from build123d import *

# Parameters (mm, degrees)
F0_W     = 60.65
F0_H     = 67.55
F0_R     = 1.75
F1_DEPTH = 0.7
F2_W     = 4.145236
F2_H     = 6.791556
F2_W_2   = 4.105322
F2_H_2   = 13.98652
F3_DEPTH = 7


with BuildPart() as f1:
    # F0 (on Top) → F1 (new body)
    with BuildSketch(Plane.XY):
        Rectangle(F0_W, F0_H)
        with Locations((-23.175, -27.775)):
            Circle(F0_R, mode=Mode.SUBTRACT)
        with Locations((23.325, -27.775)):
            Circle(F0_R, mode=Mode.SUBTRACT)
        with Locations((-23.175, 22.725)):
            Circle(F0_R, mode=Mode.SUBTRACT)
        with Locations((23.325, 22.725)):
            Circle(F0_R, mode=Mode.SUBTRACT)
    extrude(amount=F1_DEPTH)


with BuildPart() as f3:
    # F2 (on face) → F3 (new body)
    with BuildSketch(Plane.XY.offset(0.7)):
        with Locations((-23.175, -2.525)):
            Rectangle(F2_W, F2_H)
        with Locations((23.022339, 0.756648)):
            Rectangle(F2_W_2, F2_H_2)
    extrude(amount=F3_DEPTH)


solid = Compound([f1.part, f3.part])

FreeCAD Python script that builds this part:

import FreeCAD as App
import Part
import Sketcher
from FreeCAD import Vector


def add_polygon(sketch, points):
    """Adds a closed chain of lines whose ends are joined by coincident constraints."""
    first, n = sketch.GeometryCount, len(points)
    for a, b in zip(points, points[1:] + points[:1]):
        sketch.addGeometry(Part.LineSegment(App.Vector(*a, 0), App.Vector(*b, 0)), False)
    for i in range(n):
        sketch.addConstraint(Sketcher.Constraint("Coincident", first + i, 2, first + (i + 1) % n, 1))

doc = App.newDocument("Part")
body = doc.addObject("PartDesign::Body", "Body")

sketch1 = body.newObject("Sketcher::SketchObject", "Sketch")
sketch1.AttachmentSupport = (doc.getObject("XY_Plane"), [""])
sketch1.MapMode = "FlatFace"
add_polygon(sketch1, [(-30.325, 33.775), (-30.325, -33.775), (30.325, -33.775), (30.325, 33.775)])
sketch1.addGeometry(Part.Circle(Vector(-23.175, -27.775, 0), Vector(0, 0, 1), 1.75), False)
sketch1.addGeometry(Part.Circle(Vector(23.325, -27.775, 0), Vector(0, 0, 1), 1.75), False)
sketch1.addGeometry(Part.Circle(Vector(-23.175, 22.725, 0), Vector(0, 0, 1), 1.75), False)
sketch1.addGeometry(Part.Circle(Vector(23.325, 22.725, 0), Vector(0, 0, 1), 1.75), False)
sketch1.addConstraint([
    Sketcher.Constraint("Vertical", 0),
    Sketcher.Constraint("Horizontal", 1),
    Sketcher.Constraint("Vertical", 2),
    Sketcher.Constraint("Horizontal", 3),
    Sketcher.Constraint("Equal", 4, 5),
    Sketcher.Constraint("Equal", 5, 6),
    Sketcher.Constraint("Equal", 6, 7),
    Sketcher.Constraint("Symmetric", 0, 2, 2, 2, -1, 1),
    Sketcher.Constraint("Horizontal", 4, 3, 5, 3),
    Sketcher.Constraint("Horizontal", 6, 3, 7, 3),
    Sketcher.Constraint("Vertical", 4, 3, 6, 3),
    Sketcher.Constraint("Vertical", 5, 3, 7, 3),
    Sketcher.Constraint("Diameter", 4, 3.5),
    Sketcher.Constraint("DistanceY", 0, 2, 4, 3, 6.0),
    Sketcher.Constraint("DistanceX", 5, 3, 1, 2, 7.0),
    Sketcher.Constraint("DistanceX", 1, 1, 1, 2, 60.65),
    Sketcher.Constraint("DistanceY", 0, 2, 0, 1, 67.55),
    Sketcher.Constraint("DistanceX", 4, 3, 5, 3, 46.5),
    Sketcher.Constraint("DistanceY", 4, 3, 6, 3, 50.5),
])
pad1 = body.newObject("PartDesign::Pad", "Pad")
pad1.Profile = sketch1
pad1.Length = 0.7
body2 = doc.addObject("PartDesign::Body", "Body001")
body2.AllowCompound = True

sketch2 = body2.newObject("Sketcher::SketchObject", "Sketch001")
sketch2.AttachmentSupport = (doc.getObject("XY_Plane001"), [""])
sketch2.MapMode = "FlatFace"
sketch2.AttachmentOffset = App.Placement(Vector(0, 0, 0.7), App.Rotation())
add_polygon(sketch2, [(-25.247618, 0.870778), (-25.247618, -5.920778), (-21.102382, -5.920778), (-21.102382, 0.870778)])
add_polygon(sketch2, [(20.969678, 7.749908), (20.969678, -6.236612), (25.075, -6.236612), (25.075, 7.749908)])
sketch2.addConstraint([
    Sketcher.Constraint("Vertical", 0),
    Sketcher.Constraint("Horizontal", 1),
    Sketcher.Constraint("Vertical", 2),
    Sketcher.Constraint("Horizontal", 3),
    Sketcher.Constraint("Vertical", 4),
    Sketcher.Constraint("Horizontal", 5),
    Sketcher.Constraint("Vertical", 6),
    Sketcher.Constraint("Horizontal", 7),
    Sketcher.Constraint("DistanceX", -1, 1, 5, 2, 25.075),
    Sketcher.Constraint("DistanceY", 4, 2, 4, 1, 13.98652),
    Sketcher.Constraint("DistanceX", 1, 1, 1, 2, 4.145236),
    Sketcher.Constraint("DistanceX", 5, 1, 5, 2, 4.105322),
    Sketcher.Constraint("DistanceY", 0, 2, 0, 1, 6.791556),
    Sketcher.Constraint("DistanceY", 0, 2, -1, 1, 5.920778),
    Sketcher.Constraint("DistanceX", 1, 2, -1, 1, 21.102382),
    Sketcher.Constraint("DistanceY", 4, 2, 2, 2, 7.10739),
])
pad2 = body2.newObject("PartDesign::Pad", "Pad001")
pad2.Profile = sketch2
pad2.Length = 7

doc.recompute()
